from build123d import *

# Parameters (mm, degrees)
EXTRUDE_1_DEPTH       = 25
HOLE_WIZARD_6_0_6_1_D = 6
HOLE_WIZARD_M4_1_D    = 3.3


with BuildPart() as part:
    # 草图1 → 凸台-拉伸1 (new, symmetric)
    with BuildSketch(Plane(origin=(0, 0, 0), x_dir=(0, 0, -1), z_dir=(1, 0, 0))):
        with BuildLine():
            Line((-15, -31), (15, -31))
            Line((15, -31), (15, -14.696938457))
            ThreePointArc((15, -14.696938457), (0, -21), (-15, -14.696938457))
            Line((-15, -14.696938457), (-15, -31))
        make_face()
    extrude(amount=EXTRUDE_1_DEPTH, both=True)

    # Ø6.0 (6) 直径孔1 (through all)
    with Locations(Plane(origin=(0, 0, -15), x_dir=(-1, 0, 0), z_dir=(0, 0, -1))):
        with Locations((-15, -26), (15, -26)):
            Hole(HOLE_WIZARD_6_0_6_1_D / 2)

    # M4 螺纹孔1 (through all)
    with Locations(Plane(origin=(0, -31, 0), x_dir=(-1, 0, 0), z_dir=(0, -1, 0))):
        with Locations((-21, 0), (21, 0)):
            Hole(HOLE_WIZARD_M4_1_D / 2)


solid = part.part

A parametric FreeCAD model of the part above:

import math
import FreeCAD as App
import Part
import Sketcher

V = App.Vector
Q = App.Units.Quantity

doc = App.newDocument("Part")
body = doc.addObject("PartDesign::Body", "Body")

sketch1 = body.newObject("Sketcher::SketchObject", "Sketch")
sketch1.AttachmentSupport = (doc.getObject("YZ_Plane"), [""])
sketch1.MapMode = "FlatFace"
sketch1.addGeometry([
    Part.LineSegment(V(-31, 15, 0), V(-31, -15, 0)),
    Part.LineSegment(V(-31, -15, 0), V(-15, -15, 0)),
    Part.ArcOfCircle(Part.Circle(V(0, 0, 0), V(0, 0, 1), 21), math.radians(134), math.radians(226)),
    Part.LineSegment(V(-15, 15, 0), V(-31, 15, 0)),
], False)
sketch1.addConstraint([
    Sketcher.Constraint("Coincident", 0, 2, 1, 1),
    Sketcher.Constraint("Coincident", 1, 2, 2, 2),
    Sketcher.Constraint("Coincident", 2, 1, 3, 1),
    Sketcher.Constraint("Coincident", 3, 2, 0, 1),
    Sketcher.Constraint("Vertical", 0),
    Sketcher.Constraint("Horizontal", 1),
    Sketcher.Constraint("Horizontal", 3),
    Sketcher.Constraint("Coincident", 2, 3, -1, 1),
    Sketcher.Constraint("Vertical", 1, 2, 2, 1),
    Sketcher.Constraint("Radius", 2, Q("21 mm")),
    Sketcher.Constraint("DistanceY", 0, 2, 0, 1, Q("30 mm")),
    Sketcher.Constraint("DistanceX", 0, 2, -1, 1, Q("31 mm")),
])
pad1 = body.newObject("PartDesign::Pad", "Pad")
pad1.Profile = sketch1
pad1.Length = 50
pad1.Midplane = True

sketch2 = body.newObject("Sketcher::SketchObject", "Sketch001")
sketch2.AttachmentSupport = (doc.getObject("XY_Plane"), [""])
sketch2.MapMode = "FlatFace"
sketch2.AttachmentOffset = App.Placement(V(0, 0, -15), App.Rotation())
sketch2.addGeometry([
    Part.Circle(V(15, -26, 0), V(0, 0, 1), 3),
    Part.Circle(V(-15, -26, 0), V(0, 0, 1), 3),
], False)
sketch2.addConstraint([
    Sketcher.Constraint("Equal", 0, 1),
    Sketcher.Constraint("Symmetric", 0, 3, 1, 3, -2),
    Sketcher.Constraint("Diameter", 0, Q("6 mm")),
    Sketcher.Constraint("DistanceX", -1, 1, 0, 3, Q("15 mm")),
    Sketcher.Constraint("DistanceY", 0, 3, -1, 1, Q("26 mm")),
])
doc.recompute()
hole = body.newObject("PartDesign::Hole", "Hole")
hole.Profile = sketch2
hole.ThreadType = "None"
hole.Diameter = 6
hole.DepthType = "ThroughAll"
hole.Reversed = True

sketch3 = body.newObject("Sketcher::SketchObject", "Sketch002")
sketch3.AttachmentSupport = (doc.getObject("XZ_Plane"), [""])
sketch3.MapMode = "FlatFace"
sketch3.AttachmentOffset = App.Placement(V(0, 0, 31), App.Rotation())
sketch3.addGeometry([
    Part.Circle(V(21, 0, 0), V(0, 0, 1), 1.6),
    Part.Circle(V(-21, 0, 0), V(0, 0, 1), 1.6),
], False)
sketch3.addConstraint([
    Sketcher.Constraint("Equal", 0, 1),
    Sketcher.Constraint("Symmetric", 0, 3, 1, 3, -1, 1),
    Sketcher.Constraint("PointOnObject", 0, 3, -1),
    Sketcher.Constraint("Diameter", 0, Q("3.3 mm")),
    Sketcher.Constraint("DistanceX", -1, 1, 0, 3, Q("21 mm")),
])
doc.recompute()
hole2 = body.newObject("PartDesign::Hole", "Hole001")
hole2.Profile = sketch3
hole2.ThreadType = "None"
hole2.Diameter = 3.3
hole2.DepthType = "ThroughAll"

doc.recompute()
